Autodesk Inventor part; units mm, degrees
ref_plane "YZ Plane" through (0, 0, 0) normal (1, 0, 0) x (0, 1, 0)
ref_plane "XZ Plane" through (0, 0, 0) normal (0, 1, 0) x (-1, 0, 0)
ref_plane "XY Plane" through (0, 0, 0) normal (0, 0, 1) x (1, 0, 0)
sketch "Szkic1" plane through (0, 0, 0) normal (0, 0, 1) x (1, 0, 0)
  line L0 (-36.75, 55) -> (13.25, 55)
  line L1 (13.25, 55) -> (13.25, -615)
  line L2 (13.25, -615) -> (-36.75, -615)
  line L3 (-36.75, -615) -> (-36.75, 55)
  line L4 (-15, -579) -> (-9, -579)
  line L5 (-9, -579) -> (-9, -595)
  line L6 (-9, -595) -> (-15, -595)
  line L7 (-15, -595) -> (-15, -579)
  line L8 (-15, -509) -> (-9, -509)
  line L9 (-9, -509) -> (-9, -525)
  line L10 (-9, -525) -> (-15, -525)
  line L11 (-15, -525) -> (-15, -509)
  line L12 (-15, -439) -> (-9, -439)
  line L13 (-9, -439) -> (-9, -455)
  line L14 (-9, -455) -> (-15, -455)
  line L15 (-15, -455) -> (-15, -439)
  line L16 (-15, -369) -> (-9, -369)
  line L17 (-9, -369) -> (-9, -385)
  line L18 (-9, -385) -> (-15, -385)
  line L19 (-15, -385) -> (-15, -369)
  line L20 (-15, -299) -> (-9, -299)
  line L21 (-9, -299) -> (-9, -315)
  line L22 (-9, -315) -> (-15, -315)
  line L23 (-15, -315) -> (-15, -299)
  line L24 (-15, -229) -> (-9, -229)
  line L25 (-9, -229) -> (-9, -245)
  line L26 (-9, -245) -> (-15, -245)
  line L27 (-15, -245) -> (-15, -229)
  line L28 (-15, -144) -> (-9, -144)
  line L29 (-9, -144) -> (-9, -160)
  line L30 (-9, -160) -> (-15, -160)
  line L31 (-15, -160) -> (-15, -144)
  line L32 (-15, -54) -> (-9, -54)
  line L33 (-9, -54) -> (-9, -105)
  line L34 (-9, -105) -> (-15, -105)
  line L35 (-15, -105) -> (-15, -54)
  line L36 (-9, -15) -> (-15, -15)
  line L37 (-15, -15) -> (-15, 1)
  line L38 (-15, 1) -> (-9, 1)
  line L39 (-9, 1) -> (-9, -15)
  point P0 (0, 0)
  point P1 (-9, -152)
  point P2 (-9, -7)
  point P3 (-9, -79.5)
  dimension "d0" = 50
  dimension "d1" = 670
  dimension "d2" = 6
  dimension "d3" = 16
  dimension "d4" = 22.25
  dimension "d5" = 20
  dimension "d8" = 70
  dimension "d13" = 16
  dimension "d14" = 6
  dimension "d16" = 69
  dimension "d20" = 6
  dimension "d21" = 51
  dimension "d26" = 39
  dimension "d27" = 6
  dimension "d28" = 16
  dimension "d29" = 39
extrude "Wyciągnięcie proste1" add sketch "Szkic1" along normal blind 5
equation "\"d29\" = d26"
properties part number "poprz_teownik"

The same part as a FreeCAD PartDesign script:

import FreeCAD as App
import Part
import Sketcher
Q = App.Units.Quantity

doc = App.newDocument("Part")
body = doc.addObject("PartDesign::Body", "Body")

# Sketch on XY plane
sketch1 = doc.addObject("Sketcher::SketchObject", "Sketch")
body.addObject(sketch1)
sketch1.AttachmentSupport = (doc.XY_Plane, [""])
sketch1.MapMode = "FlatFace"
sketch1.addGeometry([
    Part.LineSegment(App.Vector(13, 55, 0), App.Vector(-37, 55, 0)),  # 0
    Part.LineSegment(App.Vector(-37, 55, 0), App.Vector(-37, -615, 0)),  # 1
    Part.LineSegment(App.Vector(-37, -615, 0), App.Vector(13, -615, 0)),  # 2
    Part.LineSegment(App.Vector(13, -615, 0), App.Vector(13, 55, 0)),  # 3
    Part.LineSegment(App.Vector(-15, -595, 0), App.Vector(-15, -579, 0)),  # 4
    Part.LineSegment(App.Vector(-15, -579, 0), App.Vector(-9, -579, 0)),  # 5
    Part.LineSegment(App.Vector(-9, -579, 0), App.Vector(-9, -595, 0)),  # 6
    Part.LineSegment(App.Vector(-9, -595, 0), App.Vector(-15, -595, 0)),  # 7
    Part.LineSegment(App.Vector(-15, -525, 0), App.Vector(-15, -509, 0)),  # 8
    Part.LineSegment(App.Vector(-15, -509, 0), App.Vector(-9, -509, 0)),  # 9
    Part.LineSegment(App.Vector(-9, -509, 0), App.Vector(-9, -525, 0)),  # 10
    Part.LineSegment(App.Vector(-9, -525, 0), App.Vector(-15, -525, 0)),  # 11
    Part.LineSegment(App.Vector(-15, -455, 0), App.Vector(-15, -439, 0)),  # 12
    Part.LineSegment(App.Vector(-15, -439, 0), App.Vector(-9, -439, 0)),  # 13
    Part.LineSegment(App.Vector(-9, -439, 0), App.Vector(-9, -455, 0)),  # 14
    Part.LineSegment(App.Vector(-9, -455, 0), App.Vector(-15, -455, 0)),  # 15
    Part.LineSegment(App.Vector(-15, -385, 0), App.Vector(-15, -369, 0)),  # 16
    Part.LineSegment(App.Vector(-15, -369, 0), App.Vector(-9, -369, 0)),  # 17
    Part.LineSegment(App.Vector(-9, -369, 0), App.Vector(-9, -385, 0)),  # 18
    Part.LineSegment(App.Vector(-9, -385, 0), App.Vector(-15, -385, 0)),  # 19
    Part.LineSegment(App.Vector(-15, -315, 0), App.Vector(-15, -299, 0)),  # 20
    Part.LineSegment(App.Vector(-15, -299, 0), App.Vector(-9, -299, 0)),  # 21
    Part.LineSegment(App.Vector(-9, -299, 0), App.Vector(-9, -315, 0)),  # 22
    Part.LineSegment(App.Vector(-9, -315, 0), App.Vector(-15, -315, 0)),  # 23
    Part.LineSegment(App.Vector(-15, -245, 0), App.Vector(-15, -229, 0)),  # 24
    Part.LineSegment(App.Vector(-15, -229, 0), App.Vector(-9, -229, 0)),  # 25
    Part.LineSegment(App.Vector(-9, -229, 0), App.Vector(-9, -245, 0)),  # 26
    Part.LineSegment(App.Vector(-9, -245, 0), App.Vector(-15, -245, 0)),  # 27
    Part.LineSegment(App.Vector(-15, -160, 0), App.Vector(-15, -144, 0)),  # 28
    Part.LineSegment(App.Vector(-15, -144, 0), App.Vector(-9, -144, 0)),  # 29
    Part.LineSegment(App.Vector(-9, -144, 0), App.Vector(-9, -160, 0)),  # 30
    Part.LineSegment(App.Vector(-9, -160, 0), App.Vector(-15, -160, 0)),  # 31
    Part.LineSegment(App.Vector(-15, -105, 0), App.Vector(-15, -54, 0)),  # 32
    Part.LineSegment(App.Vector(-15, -54, 0), App.Vector(-9, -54, 0)),  # 33
    Part.LineSegment(App.Vector(-9, -54, 0), App.Vector(-9, -105, 0)),  # 34
    Part.LineSegment(App.Vector(-9, -105, 0), App.Vector(-15, -105, 0)),  # 35
    Part.LineSegment(App.Vector(-9, 1, 0), App.Vector(-9, -15, 0)),  # 36
    Part.LineSegment(App.Vector(-9, -15, 0), App.Vector(-15, -15, 0)),  # 37
    Part.LineSegment(App.Vector(-15, -15, 0), App.Vector(-15, 1, 0)),  # 38
    Part.LineSegment(App.Vector(-15, 1, 0), App.Vector(-9, 1, 0)),  # 39
], False)
sketch1.addConstraint([
    Sketcher.Constraint("Coincident", 0, 2, 1, 1),
    Sketcher.Constraint("Coincident", 1, 2, 2, 1),
    Sketcher.Constraint("Coincident", 2, 2, 3, 1),
    Sketcher.Constraint("Coincident", 3, 2, 0, 1),
    Sketcher.Constraint("Coincident", 4, 2, 5, 1),
    Sketcher.Constraint("Coincident", 5, 2, 6, 1),
    Sketcher.Constraint("Coincident", 6, 2, 7, 1),
    Sketcher.Constraint("Coincident", 7, 2, 4, 1),
    Sketcher.Constraint("Coincident", 8, 2, 9, 1),
    Sketcher.Constraint("Coincident", 9, 2, 10, 1),
    Sketcher.Constraint("Coincident", 10, 2, 11, 1),
    Sketcher.Constraint("Coincident", 11, 2, 8, 1),
    Sketcher.Constraint("Coincident", 12, 2, 13, 1),
    Sketcher.Constraint("Coincident", 13, 2, 14, 1),
    Sketcher.Constraint("Coincident", 14, 2, 15, 1),
    Sketcher.Constraint("Coincident", 15, 2, 12, 1),
    Sketcher.Constraint("Coincident", 16, 2, 17, 1),
    Sketcher.Constraint("Coincident", 17, 2, 18, 1),
    Sketcher.Constraint("Coincident", 18, 2, 19, 1),
    Sketcher.Constraint("Coincident", 19, 2, 16, 1),
    Sketcher.Constraint("Coincident", 20, 2, 21, 1),
    Sketcher.Constraint("Coincident", 21, 2, 22, 1),
    Sketcher.Constraint("Coincident", 22, 2, 23, 1),
    Sketcher.Constraint("Coincident", 23, 2, 20, 1),
    Sketcher.Constraint("Coincident", 24, 2, 25, 1),
    Sketcher.Constraint("Coincident", 25, 2, 26, 1),
    Sketcher.Constraint("Coincident", 26, 2, 27, 1),
    Sketcher.Constraint("Coincident", 27, 2, 24, 1),
    Sketcher.Constraint("Coincident", 28, 2, 29, 1),
    Sketcher.Constraint("Coincident", 29, 2, 30, 1),
    Sketcher.Constraint("Coincident", 30, 2, 31, 1),
    Sketcher.Constraint("Coincident", 31, 2, 28, 1),
    Sketcher.Constraint("Coincident", 32, 2, 33, 1),
    Sketcher.Constraint("Coincident", 33, 2, 34, 1),
    Sketcher.Constraint("Coincident", 34, 2, 35, 1),
    Sketcher.Constraint("Coincident", 35, 2, 32, 1),
    Sketcher.Constraint("Coincident", 36, 2, 37, 1),
    Sketcher.Constraint("Coincident", 37, 2, 38, 1),
    Sketcher.Constraint("Coincident", 38, 2, 39, 1),
    Sketcher.Constraint("Coincident", 39, 2, 36, 1),
    Sketcher.Constraint("Horizontal", 0),
    Sketcher.Constraint("Vertical", 1),
    Sketcher.Constraint("Horizontal", 2),
    Sketcher.Constraint("Vertical", 3),
    Sketcher.Constraint("Vertical", 4),
    Sketcher.Constraint("Horizontal", 5),
    Sketcher.Constraint("Vertical", 6),
    Sketcher.Constraint("Horizontal", 7),
    Sketcher.Constraint("Vertical", 8),
    Sketcher.Constraint("Horizontal", 9),
    Sketcher.Constraint("Vertical", 10),
    Sketcher.Constraint("Horizontal", 11),
    Sketcher.Constraint("Vertical", 12),
    Sketcher.Constraint("Horizontal", 13),
    Sketcher.Constraint("Vertical", 14),
    Sketcher.Constraint("Horizontal", 15),
    Sketcher.Constraint("Vertical", 16),
    Sketcher.Constraint("Horizontal", 17),
    Sketcher.Constraint("Vertical", 18),
    Sketcher.Constraint("Horizontal", 19),
    Sketcher.Constraint("Vertical", 20),
    Sketcher.Constraint("Horizontal", 21),
    Sketcher.Constraint("Vertical", 22),
    Sketcher.Constraint("Horizontal", 23),
    Sketcher.Constraint("Vertical", 24),
    Sketcher.Constraint("Horizontal", 25),
    Sketcher.Constraint("Vertical", 26),
    Sketcher.Constraint("Horizontal", 27),
    Sketcher.Constraint("Vertical", 28),
    Sketcher.Constraint("Horizontal", 29),
    Sketcher.Constraint("Vertical", 30),
    Sketcher.Constraint("Horizontal", 31),
    Sketcher.Constraint("Vertical", 32),
    Sketcher.Constraint("Horizontal", 33),
    Sketcher.Constraint("Vertical", 34),
    Sketcher.Constraint("Horizontal", 35),
    Sketcher.Constraint("Vertical", 36),
    Sketcher.Constraint("Horizontal", 37),
    Sketcher.Constraint("Vertical", 38),
    Sketcher.Constraint("Horizontal", 39),
    Sketcher.Constraint("Vertical", 7, 2, 8, 2),
    Sketcher.Constraint("Vertical", 6, 2, 9, 2),
    Sketcher.Constraint("Vertical", 11, 2, 12, 2),
    Sketcher.Constraint("Vertical", 10, 2, 13, 2),
    Sketcher.Constraint("Vertical", 15, 2, 16, 2),
    Sketcher.Constraint("Vertical", 14, 2, 17, 2),
    Sketcher.Constraint("Vertical", 19, 2, 20, 2),
    Sketcher.Constraint("Vertical", 18, 2, 21, 2),
    Sketcher.Constraint("Vertical", 23, 2, 24, 2),
    Sketcher.Constraint("Vertical", 22, 2, 25, 2),
    Sketcher.Constraint("Vertical", 27, 2, 28, 2),
    Sketcher.Constraint("Vertical", 26, 2, 29, 2),
    Sketcher.Constraint("Vertical", 31, 2, 32, 2),
    Sketcher.Constraint("Vertical", 30, 2, 33, 2),
    Sketcher.Constraint("Vertical", 34, 2, 36, 2),
    Sketcher.Constraint("Vertical", 35, 2, 37, 2),
    Sketcher.Constraint("Equal", 6, 8),
    Sketcher.Constraint("Equal", 10, 12),
    Sketcher.Constraint("Equal", 14, 16),
    Sketcher.Constraint("Equal", 18, 20),
    Sketcher.Constraint("Equal", 22, 24),
    Sketcher.Constraint("Equal", 26, 28),
    Sketcher.Constraint("Equal", 30, 36),
    Sketcher.Constraint("DistanceX", 0, 2, 0, 1, Q("50 mm")),
    Sketcher.Constraint("DistanceX", 5, 1, 5, 2, Q("6 mm")),
    Sketcher.Constraint("DistanceY", 1, 2, 1, 1, Q("670 mm")),
    Sketcher.Constraint("DistanceY", 4, 1, 4, 2, Q("16 mm")),
    Sketcher.Constraint("DistanceY", 32, 1, 32, 2, Q("51 mm")),
    Sketcher.Constraint("DistanceY", 2, 2, 6, 2, Q("20 mm")),
    Sketcher.Constraint("DistanceY", 4, 2, 8, 2, Q("70 mm")),
    Sketcher.Constraint("DistanceY", 8, 2, 12, 2, Q("70 mm")),
    Sketcher.Constraint("DistanceY", 12, 2, 16, 2, Q("70 mm")),
    Sketcher.Constraint("DistanceY", 16, 2, 20, 2, Q("70 mm")),
    Sketcher.Constraint("DistanceY", 20, 2, 24, 2, Q("70 mm")),
    Sketcher.Constraint("DistanceY", 25, 2, 30, 2, Q("69 mm")),
    Sketcher.Constraint("DistanceY", 29, 2, 34, 2, Q("39 mm")),
    Sketcher.Constraint("DistanceY", 33, 2, 36, 2, Q("39 mm")),
    Sketcher.Constraint("DistanceX", 5, 2, 2, 2, Q("22.25 mm")),
    Sketcher.Constraint("DistanceY", -1, 1, 0, 2, Q("55 mm")),
    Sketcher.Constraint("DistanceX", 4, 2, -1, 1, Q("15 mm")),
])
pad1 = doc.addObject("PartDesign::Pad", "Pad")
body.addObject(pad1)
pad1.Profile = sketch1
pad1.Length = 5

doc.recompute()
